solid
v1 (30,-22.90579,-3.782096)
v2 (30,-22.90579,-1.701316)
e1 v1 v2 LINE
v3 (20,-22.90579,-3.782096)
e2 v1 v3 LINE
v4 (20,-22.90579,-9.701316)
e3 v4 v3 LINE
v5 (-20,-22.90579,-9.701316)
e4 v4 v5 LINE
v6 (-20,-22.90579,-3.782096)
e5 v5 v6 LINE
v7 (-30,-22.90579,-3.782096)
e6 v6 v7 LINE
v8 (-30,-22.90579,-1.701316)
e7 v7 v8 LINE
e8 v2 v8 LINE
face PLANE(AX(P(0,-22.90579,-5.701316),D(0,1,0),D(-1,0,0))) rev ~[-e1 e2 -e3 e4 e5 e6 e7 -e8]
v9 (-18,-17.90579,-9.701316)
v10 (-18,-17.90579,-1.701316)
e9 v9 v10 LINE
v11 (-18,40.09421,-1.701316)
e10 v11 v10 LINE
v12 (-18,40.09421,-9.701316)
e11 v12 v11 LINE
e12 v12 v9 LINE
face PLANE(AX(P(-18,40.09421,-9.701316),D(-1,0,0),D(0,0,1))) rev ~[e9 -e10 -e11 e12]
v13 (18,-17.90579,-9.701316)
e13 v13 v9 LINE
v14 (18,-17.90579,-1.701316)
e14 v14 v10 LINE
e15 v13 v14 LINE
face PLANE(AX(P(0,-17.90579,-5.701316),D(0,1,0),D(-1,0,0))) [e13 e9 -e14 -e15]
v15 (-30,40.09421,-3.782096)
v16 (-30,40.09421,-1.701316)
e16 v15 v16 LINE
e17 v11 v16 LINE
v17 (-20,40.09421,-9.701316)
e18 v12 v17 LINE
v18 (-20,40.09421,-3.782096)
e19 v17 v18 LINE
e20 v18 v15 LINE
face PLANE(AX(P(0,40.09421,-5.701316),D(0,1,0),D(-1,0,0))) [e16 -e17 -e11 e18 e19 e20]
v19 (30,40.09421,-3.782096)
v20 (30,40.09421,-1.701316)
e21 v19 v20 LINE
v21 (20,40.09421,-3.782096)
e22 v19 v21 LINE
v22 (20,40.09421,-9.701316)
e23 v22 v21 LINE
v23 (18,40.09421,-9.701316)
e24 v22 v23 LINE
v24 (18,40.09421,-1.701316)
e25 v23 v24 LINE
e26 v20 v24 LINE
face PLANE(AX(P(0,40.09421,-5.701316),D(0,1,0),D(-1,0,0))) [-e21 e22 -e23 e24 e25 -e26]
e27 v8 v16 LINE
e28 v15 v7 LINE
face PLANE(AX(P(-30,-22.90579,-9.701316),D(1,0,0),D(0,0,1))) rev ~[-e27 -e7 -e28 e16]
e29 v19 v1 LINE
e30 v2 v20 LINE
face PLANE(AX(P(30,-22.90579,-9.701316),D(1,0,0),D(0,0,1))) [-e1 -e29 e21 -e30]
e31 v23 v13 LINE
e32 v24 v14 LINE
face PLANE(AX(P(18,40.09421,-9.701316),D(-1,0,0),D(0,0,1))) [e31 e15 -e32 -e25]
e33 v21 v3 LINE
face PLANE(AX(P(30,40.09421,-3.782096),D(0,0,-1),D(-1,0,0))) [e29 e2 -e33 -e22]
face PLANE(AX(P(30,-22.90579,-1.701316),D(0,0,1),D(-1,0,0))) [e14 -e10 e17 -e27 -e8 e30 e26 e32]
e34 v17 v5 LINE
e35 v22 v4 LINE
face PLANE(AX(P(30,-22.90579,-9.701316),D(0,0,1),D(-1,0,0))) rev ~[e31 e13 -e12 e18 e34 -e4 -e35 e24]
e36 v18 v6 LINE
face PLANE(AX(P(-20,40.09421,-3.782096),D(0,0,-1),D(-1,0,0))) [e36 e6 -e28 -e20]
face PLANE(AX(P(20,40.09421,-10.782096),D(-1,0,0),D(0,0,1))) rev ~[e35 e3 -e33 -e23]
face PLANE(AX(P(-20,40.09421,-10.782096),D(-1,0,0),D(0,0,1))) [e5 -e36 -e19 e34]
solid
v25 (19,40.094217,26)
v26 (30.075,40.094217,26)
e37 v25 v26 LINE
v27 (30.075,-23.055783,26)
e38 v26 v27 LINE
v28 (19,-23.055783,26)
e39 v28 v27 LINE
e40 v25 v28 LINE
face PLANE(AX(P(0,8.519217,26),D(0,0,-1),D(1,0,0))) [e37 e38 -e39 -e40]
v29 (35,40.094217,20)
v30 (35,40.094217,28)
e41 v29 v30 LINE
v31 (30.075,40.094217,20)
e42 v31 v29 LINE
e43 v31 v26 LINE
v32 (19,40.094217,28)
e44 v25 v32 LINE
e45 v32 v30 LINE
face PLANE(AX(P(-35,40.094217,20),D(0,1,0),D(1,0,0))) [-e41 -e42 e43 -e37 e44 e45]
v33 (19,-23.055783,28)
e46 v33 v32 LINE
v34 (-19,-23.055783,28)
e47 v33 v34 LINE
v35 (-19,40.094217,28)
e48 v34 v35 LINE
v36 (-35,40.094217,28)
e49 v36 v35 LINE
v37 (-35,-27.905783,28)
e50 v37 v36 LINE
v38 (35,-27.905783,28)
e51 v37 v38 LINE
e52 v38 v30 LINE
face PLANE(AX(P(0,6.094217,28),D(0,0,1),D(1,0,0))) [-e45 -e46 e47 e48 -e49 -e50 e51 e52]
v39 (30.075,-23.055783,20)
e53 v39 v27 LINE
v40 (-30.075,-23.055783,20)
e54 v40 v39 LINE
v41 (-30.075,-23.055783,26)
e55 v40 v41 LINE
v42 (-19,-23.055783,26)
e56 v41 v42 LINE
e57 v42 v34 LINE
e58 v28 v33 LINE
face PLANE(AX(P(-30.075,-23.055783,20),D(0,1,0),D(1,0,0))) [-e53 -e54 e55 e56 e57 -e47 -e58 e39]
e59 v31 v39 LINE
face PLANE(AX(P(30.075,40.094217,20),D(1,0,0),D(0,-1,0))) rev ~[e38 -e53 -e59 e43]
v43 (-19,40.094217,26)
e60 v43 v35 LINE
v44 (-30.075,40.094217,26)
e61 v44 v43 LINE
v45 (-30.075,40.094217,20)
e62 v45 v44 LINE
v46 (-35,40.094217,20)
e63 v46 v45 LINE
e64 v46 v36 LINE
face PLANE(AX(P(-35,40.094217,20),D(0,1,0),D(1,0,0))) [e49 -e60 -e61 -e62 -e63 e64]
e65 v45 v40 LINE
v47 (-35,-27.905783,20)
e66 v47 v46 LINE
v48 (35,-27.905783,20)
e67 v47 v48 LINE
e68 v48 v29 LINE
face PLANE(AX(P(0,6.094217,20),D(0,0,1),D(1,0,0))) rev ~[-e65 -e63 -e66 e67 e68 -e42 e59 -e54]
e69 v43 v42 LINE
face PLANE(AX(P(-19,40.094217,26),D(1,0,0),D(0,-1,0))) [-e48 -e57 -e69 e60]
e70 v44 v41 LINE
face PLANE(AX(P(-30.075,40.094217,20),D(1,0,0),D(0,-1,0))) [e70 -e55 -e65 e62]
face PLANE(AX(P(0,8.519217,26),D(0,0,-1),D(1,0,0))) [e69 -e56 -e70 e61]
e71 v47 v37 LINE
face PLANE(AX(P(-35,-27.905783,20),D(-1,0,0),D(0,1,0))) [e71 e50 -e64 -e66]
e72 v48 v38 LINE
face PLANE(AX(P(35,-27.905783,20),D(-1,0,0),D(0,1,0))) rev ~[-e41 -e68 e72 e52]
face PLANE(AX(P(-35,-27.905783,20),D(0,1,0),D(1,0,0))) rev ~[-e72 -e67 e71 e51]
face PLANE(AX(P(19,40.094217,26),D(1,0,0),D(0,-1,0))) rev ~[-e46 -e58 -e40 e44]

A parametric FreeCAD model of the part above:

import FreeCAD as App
import Part
import Sketcher
from FreeCAD import Vector
Q = App.Units.Quantity

doc = App.newDocument("Part")
body = doc.addObject("PartDesign::Body", "Body")

sketch1 = body.newObject("Sketcher::SketchObject", "Sketch")
sketch1.AttachmentSupport = (doc.getObject("XZ_Plane"), [""])
sketch1.MapMode = "FlatFace"
sketch1.AttachmentOffset = App.Placement(Vector(0, 0, 22.90579), App.Rotation())
sketch1.addGeometry([
    Part.LineSegment(Vector(30, -2, 0), Vector(30, -10, 0)),
    Part.LineSegment(Vector(30, -10, 0), Vector(-30, -10, 0)),
    Part.LineSegment(Vector(-30, -10, 0), Vector(-30, -2, 0)),
    Part.LineSegment(Vector(-30, -2, 0), Vector(30, -2, 0)),
], False)
sketch1.addConstraint([
    Sketcher.Constraint("Coincident", 0, 2, 1, 1),
    Sketcher.Constraint("Coincident", 1, 2, 2, 1),
    Sketcher.Constraint("Coincident", 2, 2, 3, 1),
    Sketcher.Constraint("Coincident", 3, 2, 0, 1),
    Sketcher.Constraint("Vertical", 0),
    Sketcher.Constraint("Horizontal", 1),
    Sketcher.Constraint("Vertical", 2),
    Sketcher.Constraint("Horizontal", 3),
    Sketcher.Constraint("DistanceX", 1, 2, 1, 1, Q("60 mm")),
    Sketcher.Constraint("DistanceY", 0, 2, 0, 1, Q("8 mm")),
    Sketcher.Constraint("DistanceX", -1, 1, 0, 2, Q("30 mm")),
    Sketcher.Constraint("DistanceY", 0, 2, -1, 1, Q("9.701316 mm")),
])
pad1 = body.newObject("PartDesign::Pad", "Pad")
pad1.Profile = sketch1
pad1.Length = 63
pad1.Reversed = True

sketch2 = body.newObject("Sketcher::SketchObject", "Sketch001")
sketch2.AttachmentSupport = (doc.getObject("XZ_Plane"), [""])
sketch2.MapMode = "FlatFace"
sketch2.AttachmentOffset = App.Placement(Vector(0, 0, -40.09421), App.Rotation())
sketch2.addGeometry([
    Part.LineSegment(Vector(18, -2, 0), Vector(18, -10, 0)),
    Part.LineSegment(Vector(18, -10, 0), Vector(-18, -10, 0)),
    Part.LineSegment(Vector(-18, -10, 0), Vector(-18, -2, 0)),
    Part.LineSegment(Vector(-18, -2, 0), Vector(18, -2, 0)),
], False)
sketch2.addConstraint([
    Sketcher.Constraint("Coincident", 0, 2, 1, 1),
    Sketcher.Constraint("Coincident", 1, 2, 2, 1),
    Sketcher.Constraint("Coincident", 2, 2, 3, 1),
    Sketcher.Constraint("Coincident", 3, 2, 0, 1),
    Sketcher.Constraint("Vertical", 0),
    Sketcher.Constraint("Horizontal", 1),
    Sketcher.Constraint("Vertical", 2),
    Sketcher.Constraint("Horizontal", 3),
    Sketcher.Constraint("DistanceX", 1, 2, 1, 1, Q("36 mm")),
    Sketcher.Constraint("DistanceY", 0, 2, 0, 1, Q("8 mm")),
    Sketcher.Constraint("DistanceX", -1, 1, 0, 2, Q("18 mm")),
    Sketcher.Constraint("DistanceY", 0, 2, -1, 1, Q("9.701316 mm")),
])
pocket1 = body.newObject("PartDesign::Pocket", "Pocket")
pocket1.Profile = sketch2
pocket1.Length = 58
pocket1.Reversed = True

sketch3 = body.newObject("Sketcher::SketchObject", "Sketch002")
sketch3.AttachmentSupport = (doc.getObject("XZ_Plane"), [""])
sketch3.MapMode = "FlatFace"
sketch3.AttachmentOffset = App.Placement(Vector(0, 0, -40.09421), App.Rotation())
sketch3.addGeometry([
    Part.LineSegment(Vector(30, -4, 0), Vector(30, -11, 0)),
    Part.LineSegment(Vector(30, -11, 0), Vector(20, -11, 0)),
    Part.LineSegment(Vector(20, -11, 0), Vector(20, -4, 0)),
    Part.LineSegment(Vector(20, -4, 0), Vector(30, -4, 0)),
    Part.LineSegment(Vector(-20, -4, 0), Vector(-20, -11, 0)),
    Part.LineSegment(Vector(-20, -11, 0), Vector(-30, -11, 0)),
    Part.LineSegment(Vector(-30, -11, 0), Vector(-30, -4, 0)),
    Part.LineSegment(Vector(-30, -4, 0), Vector(-20, -4, 0)),
], False)
sketch3.addConstraint([
    Sketcher.Constraint("Coincident", 0, 2, 1, 1),
    Sketcher.Constraint("Coincident", 1, 2, 2, 1),
    Sketcher.Constraint("Coincident", 2, 2, 3, 1),
    Sketcher.Constraint("Coincident", 3, 2, 0, 1),
    Sketcher.Constraint("Coincident", 4, 2, 5, 1),
    Sketcher.Constraint("Coincident", 5, 2, 6, 1),
    Sketcher.Constraint("Coincident", 6, 2, 7, 1),
    Sketcher.Constraint("Coincident", 7, 2, 4, 1),
    Sketcher.Constraint("Vertical", 0),
    Sketcher.Constraint("Horizontal", 1),
    Sketcher.Constraint("Vertical", 2),
    Sketcher.Constraint("Horizontal", 3),
    Sketcher.Constraint("Vertical", 4),
    Sketcher.Constraint("Horizontal", 5),
    Sketcher.Constraint("Vertical", 6),
    Sketcher.Constraint("Horizontal", 7),
    Sketcher.Constraint("Symmetric", 1, 2, 4, 2, -2),
    Sketcher.Constraint("Symmetric", 3, 2, 6, 2, -2),
    Sketcher.Constraint("DistanceX", 1, 2, 1, 1, Q("10 mm")),
    Sketcher.Constraint("DistanceY", 0, 2, 0, 1, Q("7 mm")),
    Sketcher.Constraint("DistanceX", -1, 1, 0, 2, Q("30 mm")),
    Sketcher.Constraint("DistanceY", 0, 2, -1, 1, Q("10.782096 mm")),
])
pocket2 = body.newObject("PartDesign::Pocket", "Pocket001")
pocket2.Profile = sketch3
pocket2.Length = 63
pocket2.Reversed = True
body2 = doc.addObject("PartDesign::Body", "Body001")

sketch4 = body2.newObject("Sketcher::SketchObject", "Sketch003")
sketch4.AttachmentSupport = (doc.getObject("XY_Plane001"), [""])
sketch4.MapMode = "FlatFace"
sketch4.AttachmentOffset = App.Placement(Vector(0, 0, 20), App.Rotation())
sketch4.addGeometry([
    Part.LineSegment(Vector(-35, 40, 0), Vector(-35, -28, 0)),
    Part.LineSegment(Vector(-35, -28, 0), Vector(35, -28, 0)),
    Part.LineSegment(Vector(35, -28, 0), Vector(35, 40, 0)),
    Part.LineSegment(Vector(35, 40, 0), Vector(-35, 40, 0)),
], False)
sketch4.addConstraint([
    Sketcher.Constraint("Coincident", 0, 2, 1, 1),
    Sketcher.Constraint("Coincident", 1, 2, 2, 1),
    Sketcher.Constraint("Coincident", 2, 2, 3, 1),
    Sketcher.Constraint("Coincident", 3, 2, 0, 1),
    Sketcher.Constraint("Vertical", 0),
    Sketcher.Constraint("Horizontal", 1),
    Sketcher.Constraint("Vertical", 2),
    Sketcher.Constraint("Horizontal", 3),
    Sketcher.Constraint("DistanceX", 1, 1, 1, 2, Q("70 mm")),
    Sketcher.Constraint("DistanceY", 0, 2, 0, 1, Q("68 mm")),
    Sketcher.Constraint("DistanceX", 0, 2, -1, 1, Q("35 mm")),
    Sketcher.Constraint("DistanceY", 0, 2, -1, 1, Q("27.905783 mm")),
])
pad2 = body2.newObject("PartDesign::Pad", "Pad001")
pad2.Profile = sketch4
pad2.Length = 8

sketch5 = body2.newObject("Sketcher::SketchObject", "Sketch004")
sketch5.AttachmentSupport = (doc.getObject("XY_Plane001"), [""])
sketch5.MapMode = "FlatFace"
sketch5.AttachmentOffset = App.Placement(Vector(0, 0, 20), App.Rotation())
sketch5.addGeometry([
    Part.LineSegment(Vector(-30, -23, 0), Vector(-30, 40, 0)),
    Part.LineSegment(Vector(-30, 40, 0), Vector(30, 40, 0)),
    Part.LineSegment(Vector(30, 40, 0), Vector(30, -23, 0)),
    Part.LineSegment(Vector(30, -23, 0), Vector(-30, -23, 0)),
], False)
sketch5.addConstraint([
    Sketcher.Constraint("Coincident", 0, 2, 1, 1),
    Sketcher.Constraint("Coincident", 1, 2, 2, 1),
    Sketcher.Constraint("Coincident", 2, 2, 3, 1),
    Sketcher.Constraint("Coincident", 3, 2, 0, 1),
    Sketcher.Constraint("Vertical", 0),
    Sketcher.Constraint("Horizontal", 1),
    Sketcher.Constraint("Vertical", 2),
    Sketcher.Constraint("Horizontal", 3),
    Sketcher.Constraint("DistanceX", 1, 1, 1, 2, Q("60.15 mm")),
    Sketcher.Constraint("DistanceY", 0, 1, 0, 2, Q("63.15 mm")),
    Sketcher.Constraint("DistanceX", 0, 2, -1, 1, Q("30.075 mm")),
    Sketcher.Constraint("DistanceY", -1, 1, 0, 2, Q("40.094217 mm")),
])
pocket3 = body2.newObject("PartDesign::Pocket", "Pocket002")
pocket3.Profile = sketch5
pocket3.Length = 6
pocket3.Reversed = True

sketch6 = body2.newObject("Sketcher::SketchObject", "Sketch005")
sketch6.AttachmentSupport = (doc.getObject("XY_Plane001"), [""])
sketch6.MapMode = "FlatFace"
sketch6.AttachmentOffset = App.Placement(Vector(0, 0, 26), App.Rotation())
sketch6.addGeometry([
    Part.LineSegment(Vector(-19, -23, 0), Vector(-19, 40, 0)),
    Part.LineSegment(Vector(-19, 40, 0), Vector(19, 40, 0)),
    Part.LineSegment(Vector(19, 40, 0), Vector(19, -23, 0)),
    Part.LineSegment(Vector(19, -23, 0), Vector(-19, -23, 0)),
], False)
sketch6.addConstraint([
    Sketcher.Constraint("Coincident", 0, 2, 1, 1),
    Sketcher.Constraint("Coincident", 1, 2, 2, 1),
    Sketcher.Constraint("Coincident", 2, 2, 3, 1),
    Sketcher.Constraint("Coincident", 3, 2, 0, 1),
    Sketcher.Constraint("Vertical", 0),
    Sketcher.Constraint("Horizontal", 1),
    Sketcher.Constraint("Vertical", 2),
    Sketcher.Constraint("Horizontal", 3),
    Sketcher.Constraint("DistanceX", 1, 1, 1, 2, Q("38 mm")),
    Sketcher.Constraint("DistanceX", 0, 2, -1, 1, Q("19 mm")),
    Sketcher.Constraint("DistanceY", 0, 1, 0, 2, Q("63.15 mm")),
    Sketcher.Constraint("DistanceY", -1, 1, 0, 2, Q("40.094217 mm")),
])
pocket4 = body2.newObject("PartDesign::Pocket", "Pocket003")
pocket4.Profile = sketch6
pocket4.Type = "ThroughAll"
pocket4.Reversed = True

doc.recompute()
